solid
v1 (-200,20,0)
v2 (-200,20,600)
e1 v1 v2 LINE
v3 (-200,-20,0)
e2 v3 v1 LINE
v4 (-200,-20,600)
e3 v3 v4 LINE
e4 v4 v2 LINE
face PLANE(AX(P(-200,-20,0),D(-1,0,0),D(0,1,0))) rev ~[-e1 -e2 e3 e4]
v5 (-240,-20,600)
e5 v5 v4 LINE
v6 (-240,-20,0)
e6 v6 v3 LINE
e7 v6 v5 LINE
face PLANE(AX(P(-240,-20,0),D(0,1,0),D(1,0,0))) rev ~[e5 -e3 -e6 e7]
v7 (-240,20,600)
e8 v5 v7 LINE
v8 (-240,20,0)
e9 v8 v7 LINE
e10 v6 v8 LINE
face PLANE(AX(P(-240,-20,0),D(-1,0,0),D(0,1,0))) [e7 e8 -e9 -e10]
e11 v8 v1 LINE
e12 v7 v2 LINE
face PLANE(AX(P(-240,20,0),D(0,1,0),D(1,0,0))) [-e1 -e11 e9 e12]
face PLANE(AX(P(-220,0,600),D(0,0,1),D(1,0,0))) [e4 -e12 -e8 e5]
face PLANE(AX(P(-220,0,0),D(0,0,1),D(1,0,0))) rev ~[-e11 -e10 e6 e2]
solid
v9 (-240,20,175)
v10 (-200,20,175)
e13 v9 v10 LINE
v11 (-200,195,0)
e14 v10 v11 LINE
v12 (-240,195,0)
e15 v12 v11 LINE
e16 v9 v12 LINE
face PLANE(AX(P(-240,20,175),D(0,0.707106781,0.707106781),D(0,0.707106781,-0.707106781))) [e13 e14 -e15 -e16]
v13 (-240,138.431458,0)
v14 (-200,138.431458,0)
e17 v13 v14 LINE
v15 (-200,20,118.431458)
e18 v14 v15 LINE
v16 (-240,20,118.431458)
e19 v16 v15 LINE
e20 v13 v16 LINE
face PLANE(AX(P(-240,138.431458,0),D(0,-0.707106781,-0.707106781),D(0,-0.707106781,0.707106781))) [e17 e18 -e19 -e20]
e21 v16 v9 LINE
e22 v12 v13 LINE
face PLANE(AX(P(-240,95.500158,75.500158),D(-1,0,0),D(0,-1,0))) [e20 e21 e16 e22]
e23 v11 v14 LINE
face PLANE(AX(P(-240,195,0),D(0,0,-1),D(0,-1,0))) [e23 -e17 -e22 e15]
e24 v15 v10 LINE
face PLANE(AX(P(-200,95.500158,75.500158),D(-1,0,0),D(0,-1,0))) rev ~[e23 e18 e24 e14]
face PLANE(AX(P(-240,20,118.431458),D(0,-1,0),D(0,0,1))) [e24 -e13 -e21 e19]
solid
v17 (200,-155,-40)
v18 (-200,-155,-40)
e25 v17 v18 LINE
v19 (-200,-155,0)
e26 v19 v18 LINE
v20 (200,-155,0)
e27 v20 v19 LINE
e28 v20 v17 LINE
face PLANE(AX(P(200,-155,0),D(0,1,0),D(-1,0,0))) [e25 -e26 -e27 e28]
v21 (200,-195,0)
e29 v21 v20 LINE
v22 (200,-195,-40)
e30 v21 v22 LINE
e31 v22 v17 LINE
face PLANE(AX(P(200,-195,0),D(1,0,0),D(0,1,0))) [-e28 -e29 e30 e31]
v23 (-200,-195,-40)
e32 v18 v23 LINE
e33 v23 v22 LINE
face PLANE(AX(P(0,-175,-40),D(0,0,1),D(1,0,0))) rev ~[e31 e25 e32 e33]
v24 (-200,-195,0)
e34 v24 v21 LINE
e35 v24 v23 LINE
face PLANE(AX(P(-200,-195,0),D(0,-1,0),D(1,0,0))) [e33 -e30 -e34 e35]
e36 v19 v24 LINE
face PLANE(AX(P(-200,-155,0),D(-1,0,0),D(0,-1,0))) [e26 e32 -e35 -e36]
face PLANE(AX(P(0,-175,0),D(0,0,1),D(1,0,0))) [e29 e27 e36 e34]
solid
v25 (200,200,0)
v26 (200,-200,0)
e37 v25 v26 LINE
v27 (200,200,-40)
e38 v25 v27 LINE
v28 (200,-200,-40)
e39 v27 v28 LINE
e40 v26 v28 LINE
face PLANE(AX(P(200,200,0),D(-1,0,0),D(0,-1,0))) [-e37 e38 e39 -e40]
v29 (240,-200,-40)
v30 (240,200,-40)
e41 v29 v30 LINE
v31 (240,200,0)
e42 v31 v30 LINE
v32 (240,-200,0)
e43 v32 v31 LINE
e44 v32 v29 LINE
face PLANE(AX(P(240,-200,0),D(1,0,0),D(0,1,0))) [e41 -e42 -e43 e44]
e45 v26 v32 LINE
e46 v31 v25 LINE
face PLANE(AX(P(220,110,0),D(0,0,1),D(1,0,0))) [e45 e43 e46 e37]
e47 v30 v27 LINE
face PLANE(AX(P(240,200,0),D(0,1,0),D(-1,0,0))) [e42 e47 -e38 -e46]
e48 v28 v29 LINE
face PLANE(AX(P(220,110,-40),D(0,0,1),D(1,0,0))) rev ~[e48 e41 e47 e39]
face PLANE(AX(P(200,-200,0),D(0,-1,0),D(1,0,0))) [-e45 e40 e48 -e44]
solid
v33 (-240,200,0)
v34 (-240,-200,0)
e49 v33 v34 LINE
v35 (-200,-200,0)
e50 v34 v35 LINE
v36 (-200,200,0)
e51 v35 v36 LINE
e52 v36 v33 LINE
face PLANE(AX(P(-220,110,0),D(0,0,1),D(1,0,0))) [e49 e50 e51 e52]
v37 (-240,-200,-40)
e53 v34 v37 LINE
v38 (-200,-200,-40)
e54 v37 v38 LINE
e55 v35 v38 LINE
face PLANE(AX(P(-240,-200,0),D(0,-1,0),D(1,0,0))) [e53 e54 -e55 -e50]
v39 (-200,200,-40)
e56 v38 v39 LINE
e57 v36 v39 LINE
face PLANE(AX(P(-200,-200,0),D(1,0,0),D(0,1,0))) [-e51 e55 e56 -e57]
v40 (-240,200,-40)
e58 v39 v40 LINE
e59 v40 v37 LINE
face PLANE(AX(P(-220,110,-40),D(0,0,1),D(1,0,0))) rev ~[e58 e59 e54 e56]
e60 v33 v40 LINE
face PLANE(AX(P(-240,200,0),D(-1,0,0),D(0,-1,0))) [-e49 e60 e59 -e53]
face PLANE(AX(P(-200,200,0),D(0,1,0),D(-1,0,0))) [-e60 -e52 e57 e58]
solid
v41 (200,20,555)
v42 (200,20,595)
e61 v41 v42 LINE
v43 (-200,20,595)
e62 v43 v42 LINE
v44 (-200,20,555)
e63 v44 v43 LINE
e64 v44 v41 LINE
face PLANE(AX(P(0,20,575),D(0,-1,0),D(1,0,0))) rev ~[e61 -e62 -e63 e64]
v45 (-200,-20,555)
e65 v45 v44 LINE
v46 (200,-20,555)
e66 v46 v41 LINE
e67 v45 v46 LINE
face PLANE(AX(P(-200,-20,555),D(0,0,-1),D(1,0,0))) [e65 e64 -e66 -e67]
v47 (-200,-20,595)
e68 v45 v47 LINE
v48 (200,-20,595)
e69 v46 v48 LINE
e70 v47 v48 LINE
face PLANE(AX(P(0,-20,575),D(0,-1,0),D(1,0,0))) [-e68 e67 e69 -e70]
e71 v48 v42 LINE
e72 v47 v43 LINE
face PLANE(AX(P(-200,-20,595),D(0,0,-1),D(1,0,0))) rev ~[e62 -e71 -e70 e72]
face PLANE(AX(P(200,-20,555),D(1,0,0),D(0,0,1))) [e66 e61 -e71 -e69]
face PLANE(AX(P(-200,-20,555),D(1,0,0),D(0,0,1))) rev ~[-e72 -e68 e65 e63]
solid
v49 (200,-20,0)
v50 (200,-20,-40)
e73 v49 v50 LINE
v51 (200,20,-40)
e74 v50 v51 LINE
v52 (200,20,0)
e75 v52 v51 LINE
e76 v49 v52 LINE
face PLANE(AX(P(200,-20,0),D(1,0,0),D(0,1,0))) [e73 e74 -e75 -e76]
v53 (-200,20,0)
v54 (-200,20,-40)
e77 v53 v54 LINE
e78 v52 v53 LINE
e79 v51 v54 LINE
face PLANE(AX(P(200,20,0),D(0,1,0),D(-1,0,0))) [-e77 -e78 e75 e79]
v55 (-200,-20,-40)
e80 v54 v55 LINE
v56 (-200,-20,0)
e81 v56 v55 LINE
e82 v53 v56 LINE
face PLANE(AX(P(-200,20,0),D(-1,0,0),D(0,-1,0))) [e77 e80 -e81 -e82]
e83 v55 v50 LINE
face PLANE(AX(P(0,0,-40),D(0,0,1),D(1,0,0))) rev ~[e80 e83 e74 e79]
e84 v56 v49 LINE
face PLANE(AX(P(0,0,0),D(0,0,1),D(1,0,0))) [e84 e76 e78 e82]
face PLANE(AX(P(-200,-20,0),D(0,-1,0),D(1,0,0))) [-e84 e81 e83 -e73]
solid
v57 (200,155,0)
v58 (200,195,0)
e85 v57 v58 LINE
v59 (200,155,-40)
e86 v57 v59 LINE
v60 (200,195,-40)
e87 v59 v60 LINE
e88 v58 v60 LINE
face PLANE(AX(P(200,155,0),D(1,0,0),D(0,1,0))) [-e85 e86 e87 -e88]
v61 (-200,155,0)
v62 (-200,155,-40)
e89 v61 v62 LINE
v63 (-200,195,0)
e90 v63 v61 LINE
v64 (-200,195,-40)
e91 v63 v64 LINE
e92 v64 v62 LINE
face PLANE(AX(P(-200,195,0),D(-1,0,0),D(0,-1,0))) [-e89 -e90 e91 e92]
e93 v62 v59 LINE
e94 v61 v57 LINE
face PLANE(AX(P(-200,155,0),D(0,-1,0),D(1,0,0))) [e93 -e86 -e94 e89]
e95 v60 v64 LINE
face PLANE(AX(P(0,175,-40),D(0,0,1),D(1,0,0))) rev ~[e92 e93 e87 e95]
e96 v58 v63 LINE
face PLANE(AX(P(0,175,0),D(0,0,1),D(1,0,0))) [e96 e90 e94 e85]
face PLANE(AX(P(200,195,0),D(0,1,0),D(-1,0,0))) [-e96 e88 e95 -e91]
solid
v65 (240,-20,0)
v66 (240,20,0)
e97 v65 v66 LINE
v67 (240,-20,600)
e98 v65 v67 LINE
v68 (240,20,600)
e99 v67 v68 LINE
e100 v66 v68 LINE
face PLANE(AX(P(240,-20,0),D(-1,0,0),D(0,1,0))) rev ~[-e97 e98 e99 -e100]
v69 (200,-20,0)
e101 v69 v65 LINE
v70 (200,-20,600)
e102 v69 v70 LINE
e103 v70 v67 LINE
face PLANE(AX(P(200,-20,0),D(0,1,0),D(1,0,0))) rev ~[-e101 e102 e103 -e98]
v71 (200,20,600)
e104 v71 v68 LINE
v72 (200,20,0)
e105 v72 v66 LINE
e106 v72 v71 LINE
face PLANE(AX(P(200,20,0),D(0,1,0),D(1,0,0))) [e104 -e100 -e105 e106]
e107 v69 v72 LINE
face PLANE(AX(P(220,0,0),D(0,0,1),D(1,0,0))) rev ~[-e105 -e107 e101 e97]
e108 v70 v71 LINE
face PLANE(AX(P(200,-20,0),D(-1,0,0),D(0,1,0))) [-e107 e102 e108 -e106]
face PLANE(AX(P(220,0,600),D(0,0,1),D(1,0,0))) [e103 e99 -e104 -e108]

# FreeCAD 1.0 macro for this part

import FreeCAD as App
import Part
import Sketcher

V = App.Vector
Q = App.Units.Quantity


def add_polygon(sketch, points):
    """Adds a closed chain of lines whose ends are joined by coincident constraints."""
    first, n = sketch.GeometryCount, len(points)
    for a, b in zip(points, points[1:] + points[:1]):
        sketch.addGeometry(Part.LineSegment(App.Vector(*a, 0), App.Vector(*b, 0)), False)
    for i in range(n):
        sketch.addConstraint(Sketcher.Constraint("Coincident", first + i, 2, first + (i + 1) % n, 1))

doc = App.newDocument("Part")
params = doc.addObject("Spreadsheet::Sheet", "Params")
for row, (alias, value) in enumerate([
    ("sketch1_width", "40 mm"),
    ("sketch1_height", "400 mm"),
    ("pad1_length", "40 mm"),
    ("sketch2_width", "40 mm"),
    ("sketch2_height", "400 mm"),
    ("pad2_length", "40 mm"),
    ("sketch3_width", "400 mm"),
    ("sketch3_height", "40 mm"),
    ("pad3_length", "40 mm"),
    ("sketch4_width", "400 mm"),
    ("sketch4_height", "40 mm"),
    ("pad4_length", "40 mm"),
    ("sketch5_width", "400 mm"),
    ("sketch5_height", "40 mm"),
    ("pad5_length", "40 mm"),
    ("sketch6_width", "40 mm"),
    ("pad6_length", "600 mm"),
    ("sketch7_width", "40 mm"),
    ("pad7_length", "600 mm"),
    ("sketch8_width", "400 mm"),
    ("sketch8_height", "40 mm"),
    ("pad8_length", "40 mm"),
    ("pad9_length", "40 mm"),
], start=1):
    params.set(f"A{row}", alias)
    params.set(f"B{row}", "=" + value)
    params.setAlias(f"B{row}", alias)

body = doc.addObject("PartDesign::Body", "Body")

sketch1 = doc.addObject("Sketcher::SketchObject", "Sketch")
body.addObject(sketch1)
sketch1.AttachmentSupport = (doc.XY_Plane, [""])
sketch1.MapMode = "FlatFace"
add_polygon(sketch1, [(-200, 200), (-240, 200), (-240, -200), (-200, -200)])
sketch1.addConstraint(Sketcher.Constraint("Horizontal", 0))
sketch1.addConstraint(Sketcher.Constraint("Vertical", 1))
sketch1.addConstraint(Sketcher.Constraint("Horizontal", 2))
sketch1.addConstraint(Sketcher.Constraint("Vertical", 3))
sketch1.addConstraint(Sketcher.Constraint("DistanceX", 0, 2, 0, 1, Q("40 mm")))
sketch1.addConstraint(Sketcher.Constraint("DistanceY", 1, 2, 1, 1, Q("400 mm")))
sketch1.addConstraint(Sketcher.Constraint("DistanceX", 0, 2, -1, 1, Q("240 mm")))
sketch1.addConstraint(Sketcher.Constraint("DistanceY", -1, 1, 0, 2, Q("200 mm")))
sketch1.setExpression("Constraints[8]", "Params.sketch1_width")
sketch1.setExpression("Constraints[9]", "Params.sketch1_height")
pad1 = doc.addObject("PartDesign::Pad", "Pad")
body.addObject(pad1)
pad1.Profile = sketch1
pad1.setExpression("Length", "Params.pad1_length")
pad1.Reversed = True
body2 = doc.addObject("PartDesign::Body", "Body001")

sketch2 = doc.addObject("Sketcher::SketchObject", "Sketch001")
body2.addObject(sketch2)
sketch2.AttachmentSupport = (doc.getObject("XY_Plane001"), [""])
sketch2.MapMode = "FlatFace"
add_polygon(sketch2, [(240, 200), (200, 200), (200, -200), (240, -200)])
sketch2.addConstraint(Sketcher.Constraint("Horizontal", 0))
sketch2.addConstraint(Sketcher.Constraint("Vertical", 1))
sketch2.addConstraint(Sketcher.Constraint("Horizontal", 2))
sketch2.addConstraint(Sketcher.Constraint("Vertical", 3))
sketch2.addConstraint(Sketcher.Constraint("DistanceX", 0, 2, 0, 1, Q("40 mm")))
sketch2.addConstraint(Sketcher.Constraint("DistanceY", 1, 2, 1, 1, Q("400 mm")))
sketch2.addConstraint(Sketcher.Constraint("DistanceX", -1, 1, 0, 2, Q("200 mm")))
sketch2.addConstraint(Sketcher.Constraint("DistanceY", -1, 1, 0, 2, Q("200 mm")))
sketch2.setExpression("Constraints[8]", "Params.sketch2_width")
sketch2.setExpression("Constraints[9]", "Params.sketch2_height")
pad2 = doc.addObject("PartDesign::Pad", "Pad001")
body2.addObject(pad2)
pad2.Profile = sketch2
pad2.setExpression("Length", "Params.pad2_length")
pad2.Reversed = True
body3 = doc.addObject("PartDesign::Body", "Body002")

sketch3 = doc.addObject("Sketcher::SketchObject", "Sketch002")
body3.addObject(sketch3)
sketch3.AttachmentSupport = (doc.getObject("XY_Plane002"), [""])
sketch3.MapMode = "FlatFace"
add_polygon(sketch3, [(-200, 20), (-200, -20), (200, -20), (200, 20)])
sketch3.addConstraint(Sketcher.Constraint("Vertical", 0))
sketch3.addConstraint(Sketcher.Constraint("Horizontal", 1))
sketch3.addConstraint(Sketcher.Constraint("Vertical", 2))
sketch3.addConstraint(Sketcher.Constraint("Horizontal", 3))
sketch3.addConstraint(Sketcher.Constraint("Symmetric", 0, 2, 2, 2, -1, 1))
sketch3.addConstraint(Sketcher.Constraint("DistanceX", 1, 1, 1, 2, Q("400 mm")))
sketch3.addConstraint(Sketcher.Constraint("DistanceY", 0, 2, 0, 1, Q("40 mm")))
sketch3.setExpression("Constraints[9]", "Params.sketch3_width")
sketch3.setExpression("Constraints[10]", "Params.sketch3_height")
pad3 = doc.addObject("PartDesign::Pad", "Pad002")
body3.addObject(pad3)
pad3.Profile = sketch3
pad3.setExpression("Length", "Params.pad3_length")
pad3.Reversed = True
body4 = doc.addObject("PartDesign::Body", "Body003")

sketch4 = doc.addObject("Sketcher::SketchObject", "Sketch003")
body4.addObject(sketch4)
sketch4.AttachmentSupport = (doc.getObject("XY_Plane003"), [""])
sketch4.MapMode = "FlatFace"
add_polygon(sketch4, [(-200, -155), (-200, -195), (200, -195), (200, -155)])
sketch4.addConstraint(Sketcher.Constraint("Vertical", 0))
sketch4.addConstraint(Sketcher.Constraint("Horizontal", 1))
sketch4.addConstraint(Sketcher.Constraint("Vertical", 2))
sketch4.addConstraint(Sketcher.Constraint("Horizontal", 3))
sketch4.addConstraint(Sketcher.Constraint("DistanceX", 1, 1, 1, 2, Q("400 mm")))
sketch4.addConstraint(Sketcher.Constraint("DistanceY", 0, 2, 0, 1, Q("40 mm")))
sketch4.addConstraint(Sketcher.Constraint("DistanceX", 0, 2, -1, 1, Q("200 mm")))
sketch4.addConstraint(Sketcher.Constraint("DistanceY", 0, 2, -1, 1, Q("195 mm")))
sketch4.setExpression("Constraints[8]", "Params.sketch4_width")
sketch4.setExpression("Constraints[9]", "Params.sketch4_height")
pad4 = doc.addObject("PartDesign::Pad", "Pad003")
body4.addObject(pad4)
pad4.Profile = sketch4
pad4.setExpression("Length", "Params.pad4_length")
pad4.Reversed = True
body5 = doc.addObject("PartDesign::Body", "Body004")

sketch5 = doc.addObject("Sketcher::SketchObject", "Sketch004")
body5.addObject(sketch5)
sketch5.AttachmentSupport = (doc.getObject("XY_Plane004"), [""])
sketch5.MapMode = "FlatFace"
add_polygon(sketch5, [(-200, 195), (-200, 155), (200, 155), (200, 195)])
sketch5.addConstraint(Sketcher.Constraint("Vertical", 0))
sketch5.addConstraint(Sketcher.Constraint("Horizontal", 1))
sketch5.addConstraint(Sketcher.Constraint("Vertical", 2))
sketch5.addConstraint(Sketcher.Constraint("Horizontal", 3))
sketch5.addConstraint(Sketcher.Constraint("DistanceX", 1, 1, 1, 2, Q("400 mm")))
sketch5.addConstraint(Sketcher.Constraint("DistanceY", 0, 2, 0, 1, Q("40 mm")))
sketch5.addConstraint(Sketcher.Constraint("DistanceX", 0, 2, -1, 1, Q("200 mm")))
sketch5.addConstraint(Sketcher.Constraint("DistanceY", -1, 1, 0, 2, Q("155 mm")))
sketch5.setExpression("Constraints[8]", "Params.sketch5_width")
sketch5.setExpression("Constraints[9]", "Params.sketch5_height")
pad5 = doc.addObject("PartDesign::Pad", "Pad004")
body5.addObject(pad5)
pad5.Profile = sketch5
pad5.setExpression("Length", "Params.pad5_length")
pad5.Reversed = True
body6 = doc.addObject("PartDesign::Body", "Body005")

sketch6 = doc.addObject("Sketcher::SketchObject", "Sketch005")
body6.addObject(sketch6)
sketch6.AttachmentSupport = (doc.getObject("XY_Plane005"), [""])
sketch6.MapMode = "FlatFace"
add_polygon(sketch6, [(-240, 20), (-240, -20), (-200, -20), (-200, 20)])
sketch6.addConstraint(Sketcher.Constraint("Vertical", 0))
sketch6.addConstraint(Sketcher.Constraint("Horizontal", 1))
sketch6.addConstraint(Sketcher.Constraint("Vertical", 2))
sketch6.addConstraint(Sketcher.Constraint("Horizontal", 3))
sketch6.addConstraint(Sketcher.Constraint("Equal", 3, 0))
sketch6.addConstraint(Sketcher.Constraint("DistanceX", 1, 1, 1, 2, Q("40 mm")))
sketch6.addConstraint(Sketcher.Constraint("DistanceX", 0, 2, -1, 1, Q("240 mm")))
sketch6.addConstraint(Sketcher.Constraint("DistanceY", 0, 2, -1, 1, Q("20 mm")))
sketch6.setExpression("Constraints[9]", "Params.sketch6_width")
pad6 = doc.addObject("PartDesign::Pad", "Pad005")
body6.addObject(pad6)
pad6.Profile = sketch6
pad6.setExpression("Length", "Params.pad6_length")
body7 = doc.addObject("PartDesign::Body", "Body006")

sketch7 = doc.addObject("Sketcher::SketchObject", "Sketch006")
body7.addObject(sketch7)
sketch7.AttachmentSupport = (doc.getObject("XY_Plane006"), [""])
sketch7.MapMode = "FlatFace"
add_polygon(sketch7, [(200, 20), (200, -20), (240, -20), (240, 20)])
sketch7.addConstraint(Sketcher.Constraint("Vertical", 0))
sketch7.addConstraint(Sketcher.Constraint("Horizontal", 1))
sketch7.addConstraint(Sketcher.Constraint("Vertical", 2))
sketch7.addConstraint(Sketcher.Constraint("Horizontal", 3))
sketch7.addConstraint(Sketcher.Constraint("Equal", 3, 0))
sketch7.addConstraint(Sketcher.Constraint("DistanceX", 1, 1, 1, 2, Q("40 mm")))
sketch7.addConstraint(Sketcher.Constraint("DistanceX", -1, 1, 0, 2, Q("200 mm")))
sketch7.addConstraint(Sketcher.Constraint("DistanceY", 0, 2, -1, 1, Q("20 mm")))
sketch7.setExpression("Constraints[9]", "Params.sketch7_width")
pad7 = doc.addObject("PartDesign::Pad", "Pad006")
body7.addObject(pad7)
pad7.Profile = sketch7
pad7.setExpression("Length", "Params.pad7_length")
body8 = doc.addObject("PartDesign::Body", "Body007")

sketch8 = doc.addObject("Sketcher::SketchObject", "Sketch007")
body8.addObject(sketch8)
sketch8.AttachmentSupport = (doc.getObject("XZ_Plane007"), [""])
sketch8.MapMode = "FlatFace"
sketch8.AttachmentOffset = App.Placement(V(0, 0, 20), App.Rotation())
add_polygon(sketch8, [(-200, 595), (-200, 555), (200, 555), (200, 595)])
sketch8.addConstraint(Sketcher.Constraint("Vertical", 0))
sketch8.addConstraint(Sketcher.Constraint("Horizontal", 1))
sketch8.addConstraint(Sketcher.Constraint("Vertical", 2))
sketch8.addConstraint(Sketcher.Constraint("Horizontal", 3))
sketch8.addConstraint(Sketcher.Constraint("DistanceX", 1, 1, 1, 2, Q("400 mm")))
sketch8.addConstraint(Sketcher.Constraint("DistanceY", 0, 2, 0, 1, Q("40 mm")))
sketch8.addConstraint(Sketcher.Constraint("DistanceX", 0, 2, -1, 1, Q("200 mm")))
sketch8.addConstraint(Sketcher.Constraint("DistanceY", -1, 1, 0, 2, Q("555 mm")))
sketch8.setExpression("Constraints[8]", "Params.sketch8_width")
sketch8.setExpression("Constraints[9]", "Params.sketch8_height")
pad8 = doc.addObject("PartDesign::Pad", "Pad007")
body8.addObject(pad8)
pad8.Profile = sketch8
pad8.setExpression("Length", "Params.pad8_length")
pad8.Reversed = True
body9 = doc.addObject("PartDesign::Body", "Body008")

sketch9 = doc.addObject("Sketcher::SketchObject", "Sketch008")
body9.addObject(sketch9)
sketch9.AttachmentSupport = (doc.getObject("YZ_Plane008"), [""])
sketch9.MapMode = "FlatFace"
sketch9.AttachmentOffset = App.Placement(V(0, 0, -240), App.Rotation())
add_polygon(sketch9, [(20, 175), (195, 0), (138, 0), (20, 118)])
sketch9.addConstraint(Sketcher.Constraint("Horizontal", 1))
sketch9.addConstraint(Sketcher.Constraint("Vertical", 3))
sketch9.addConstraint(Sketcher.Constraint("PointOnObject", 0, 2, -1))
sketch9.addConstraint(Sketcher.Constraint("Parallel", 0, 2))
sketch9.addConstraint(Sketcher.Constraint("Equal", 1, 3))
sketch9.addConstraint(Sketcher.Constraint("DistanceX", -1, 1, 0, 2, Q("195 mm")))
sketch9.addConstraint(Sketcher.Constraint("DistanceX", -1, 1, 2, 2, Q("20 mm")))
sketch9.addConstraint(Sketcher.Constraint("DistanceX", 1, 2, 1, 1, Q("56.568542 mm")))
pad9 = doc.addObject("PartDesign::Pad", "Pad008")
body9.addObject(pad9)
pad9.Profile = sketch9
pad9.setExpression("Length", "Params.pad9_length")

doc.recompute()
